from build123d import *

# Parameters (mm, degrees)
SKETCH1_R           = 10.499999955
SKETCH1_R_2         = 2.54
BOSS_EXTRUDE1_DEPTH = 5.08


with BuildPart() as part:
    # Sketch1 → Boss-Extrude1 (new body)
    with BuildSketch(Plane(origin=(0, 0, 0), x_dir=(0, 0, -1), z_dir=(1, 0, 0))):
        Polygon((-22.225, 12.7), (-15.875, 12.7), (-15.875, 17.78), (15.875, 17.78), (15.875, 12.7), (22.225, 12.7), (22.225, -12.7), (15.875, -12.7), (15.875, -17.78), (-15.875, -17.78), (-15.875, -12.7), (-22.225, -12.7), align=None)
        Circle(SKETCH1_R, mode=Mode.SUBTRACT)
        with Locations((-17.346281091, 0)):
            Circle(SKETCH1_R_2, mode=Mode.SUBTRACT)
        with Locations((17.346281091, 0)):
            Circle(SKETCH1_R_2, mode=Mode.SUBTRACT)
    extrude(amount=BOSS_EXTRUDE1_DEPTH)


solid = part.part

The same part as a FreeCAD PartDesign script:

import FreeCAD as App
import Part
import Sketcher

V = App.Vector
Q = App.Units.Quantity


def add_polygon(sketch, points):
    """Adds a closed chain of lines whose ends are joined by coincident constraints."""
    first, n = sketch.GeometryCount, len(points)
    for a, b in zip(points, points[1:] + points[:1]):
        sketch.addGeometry(Part.LineSegment(App.Vector(*a, 0), App.Vector(*b, 0)), False)
    for i in range(n):
        sketch.addConstraint(Sketcher.Constraint("Coincident", first + i, 2, first + (i + 1) % n, 1))

doc = App.newDocument("Part")
body = doc.addObject("PartDesign::Body", "Body")

# Sketch on YZ plane
sketch1 = body.newObject("Sketcher::SketchObject", "Sketch")
sketch1.AttachmentSupport = (doc.getObject("YZ_Plane"), [""])
sketch1.MapMode = "FlatFace"
add_polygon(sketch1, [(12.7, 15.9), (12.7, 22.2), (-12.7, 22.2), (-12.7, 15.9), (-17.8, 15.9), (-17.8, -15.9), (-12.7, -15.9), (-12.7, -22.2), (12.7, -22.2), (12.7, -15.9), (17.8, -15.9), (17.8, 15.9)])  # lines 0-11
sketch1.addGeometry(Part.Circle(V(0, -17.3, 0), V(0, 0, 1), 2.5), False)  # 12
sketch1.addGeometry(Part.Circle(V(0, 0, 0), V(0, 0, 1), 10.5), False)  # 13
sketch1.addGeometry(Part.Circle(V(0, 17.3, 0), V(0, 0, 1), 2.5), False)  # 14
sketch1.addConstraint([
    Sketcher.Constraint("Vertical", 0),
    Sketcher.Constraint("Horizontal", 1),
    Sketcher.Constraint("Vertical", 2),
    Sketcher.Constraint("Horizontal", 3),
    Sketcher.Constraint("Vertical", 4),
    Sketcher.Constraint("Horizontal", 5),
    Sketcher.Constraint("Vertical", 6),
    Sketcher.Constraint("Horizontal", 7),
    Sketcher.Constraint("Vertical", 8),
    Sketcher.Constraint("Horizontal", 9),
    Sketcher.Constraint("Vertical", 10),
    Sketcher.Constraint("Horizontal", 11),
    Sketcher.Constraint("Coincident", 13, 3, -1, 1),
    Sketcher.Constraint("Equal", 12, 14),
    Sketcher.Constraint("Symmetric", 12, 3, 14, 3, -1, 1),
    Sketcher.Constraint("Symmetric", 0, 2, 6, 2, -1, 1),
    Sketcher.Constraint("Symmetric", 2, 2, 8, 2, -1, 1),
    Sketcher.Constraint("Symmetric", 4, 2, 10, 2, -1, 1),
    Sketcher.Constraint("Symmetric", 5, 2, 8, 2, -2),
    Sketcher.Constraint("PointOnObject", 12, 3, -2),
    Sketcher.Constraint("Diameter", 12, Q("0.2 in")),
    Sketcher.Constraint("DistanceX", 1, 2, 1, 1, Q("1 in")),
    Sketcher.Constraint("DistanceX", 3, 2, 3, 1, Q("0.2 in")),
    Sketcher.Constraint("DistanceY", 0, 1, 0, 2, Q("0.25 in")),
    Sketcher.Constraint("DistanceY", 4, 2, 4, 1, Q("1.25 in")),
    Sketcher.Constraint("Diameter", 13, 21.0),
    Sketcher.Constraint("DistanceY", 12, 3, -1, 1, 17.346281),
])
pad1 = body.newObject("PartDesign::Pad", "Pad")
pad1.Profile = sketch1
pad1.Length = Q("0.2 in")

doc.recompute()
